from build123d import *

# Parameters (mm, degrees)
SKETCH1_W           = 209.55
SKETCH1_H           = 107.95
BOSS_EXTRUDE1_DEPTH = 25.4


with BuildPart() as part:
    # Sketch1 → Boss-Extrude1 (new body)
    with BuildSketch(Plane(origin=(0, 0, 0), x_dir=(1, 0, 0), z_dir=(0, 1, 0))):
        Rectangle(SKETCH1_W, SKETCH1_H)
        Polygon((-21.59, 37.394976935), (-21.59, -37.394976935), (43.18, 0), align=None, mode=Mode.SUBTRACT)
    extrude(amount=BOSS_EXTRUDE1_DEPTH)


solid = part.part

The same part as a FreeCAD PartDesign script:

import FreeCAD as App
import Part
import Sketcher
from FreeCAD import Vector
Q = App.Units.Quantity


def add_polygon(sketch, points):
    """Adds a closed chain of lines whose ends are joined by coincident constraints."""
    first, n = sketch.GeometryCount, len(points)
    for a, b in zip(points, points[1:] + points[:1]):
        sketch.addGeometry(Part.LineSegment(App.Vector(*a, 0), App.Vector(*b, 0)), False)
    for i in range(n):
        sketch.addConstraint(Sketcher.Constraint("Coincident", first + i, 2, first + (i + 1) % n, 1))

doc = App.newDocument("Part")
body = doc.addObject("PartDesign::Body", "Body")

# Sketch on XZ plane
sketch1 = body.newObject("Sketcher::SketchObject", "Sketch")
sketch1.AttachmentSupport = (doc.getObject("XZ_Plane"), [""])
sketch1.MapMode = "FlatFace"
add_polygon(sketch1, [(-105, -54), (-105, 54), (105, 54), (105, -54)])  # lines 0-3
add_polygon(sketch1, [(-22, 37), (-22, -37), (43, 0)])  # lines 4-6
sketch1.addConstraint(Sketcher.Constraint("Vertical", 0))
sketch1.addConstraint(Sketcher.Constraint("Horizontal", 1))
sketch1.addConstraint(Sketcher.Constraint("Vertical", 2))
sketch1.addConstraint(Sketcher.Constraint("Horizontal", 3))
sketch1.addConstraint(Sketcher.Constraint("Vertical", 4))
sketch1.addConstraint(Sketcher.Constraint("Symmetric", 0, 2, 2, 2, -1, 1))
sketch1.addConstraint(Sketcher.Constraint("PointOnObject", 5, 2, -1))
sketch1.addConstraint(Sketcher.Constraint("Equal", 5, 6))
sketch1.addConstraint(Sketcher.Constraint("Angle", 5, Q("30 deg")))
sketch1.addConstraint(Sketcher.Constraint("DistanceX", 1, 1, 1, 2, Q("8.25 in")))
sketch1.addConstraint(Sketcher.Constraint("DistanceY", 0, 1, 0, 2, Q("4.25 in")))
sketch1.addConstraint(Sketcher.Constraint("DistanceX", -1, 1, 5, 2, Q("1.7 in")))
sketch1.addConstraint(Sketcher.Constraint("DistanceX", 4, 2, -1, 1, Q("0.85 in")))
pad1 = body.newObject("PartDesign::Pad", "Pad")
pad1.Profile = sketch1
pad1.Length = Q("1 in")
pad1.Reversed = True

doc.recompute()
